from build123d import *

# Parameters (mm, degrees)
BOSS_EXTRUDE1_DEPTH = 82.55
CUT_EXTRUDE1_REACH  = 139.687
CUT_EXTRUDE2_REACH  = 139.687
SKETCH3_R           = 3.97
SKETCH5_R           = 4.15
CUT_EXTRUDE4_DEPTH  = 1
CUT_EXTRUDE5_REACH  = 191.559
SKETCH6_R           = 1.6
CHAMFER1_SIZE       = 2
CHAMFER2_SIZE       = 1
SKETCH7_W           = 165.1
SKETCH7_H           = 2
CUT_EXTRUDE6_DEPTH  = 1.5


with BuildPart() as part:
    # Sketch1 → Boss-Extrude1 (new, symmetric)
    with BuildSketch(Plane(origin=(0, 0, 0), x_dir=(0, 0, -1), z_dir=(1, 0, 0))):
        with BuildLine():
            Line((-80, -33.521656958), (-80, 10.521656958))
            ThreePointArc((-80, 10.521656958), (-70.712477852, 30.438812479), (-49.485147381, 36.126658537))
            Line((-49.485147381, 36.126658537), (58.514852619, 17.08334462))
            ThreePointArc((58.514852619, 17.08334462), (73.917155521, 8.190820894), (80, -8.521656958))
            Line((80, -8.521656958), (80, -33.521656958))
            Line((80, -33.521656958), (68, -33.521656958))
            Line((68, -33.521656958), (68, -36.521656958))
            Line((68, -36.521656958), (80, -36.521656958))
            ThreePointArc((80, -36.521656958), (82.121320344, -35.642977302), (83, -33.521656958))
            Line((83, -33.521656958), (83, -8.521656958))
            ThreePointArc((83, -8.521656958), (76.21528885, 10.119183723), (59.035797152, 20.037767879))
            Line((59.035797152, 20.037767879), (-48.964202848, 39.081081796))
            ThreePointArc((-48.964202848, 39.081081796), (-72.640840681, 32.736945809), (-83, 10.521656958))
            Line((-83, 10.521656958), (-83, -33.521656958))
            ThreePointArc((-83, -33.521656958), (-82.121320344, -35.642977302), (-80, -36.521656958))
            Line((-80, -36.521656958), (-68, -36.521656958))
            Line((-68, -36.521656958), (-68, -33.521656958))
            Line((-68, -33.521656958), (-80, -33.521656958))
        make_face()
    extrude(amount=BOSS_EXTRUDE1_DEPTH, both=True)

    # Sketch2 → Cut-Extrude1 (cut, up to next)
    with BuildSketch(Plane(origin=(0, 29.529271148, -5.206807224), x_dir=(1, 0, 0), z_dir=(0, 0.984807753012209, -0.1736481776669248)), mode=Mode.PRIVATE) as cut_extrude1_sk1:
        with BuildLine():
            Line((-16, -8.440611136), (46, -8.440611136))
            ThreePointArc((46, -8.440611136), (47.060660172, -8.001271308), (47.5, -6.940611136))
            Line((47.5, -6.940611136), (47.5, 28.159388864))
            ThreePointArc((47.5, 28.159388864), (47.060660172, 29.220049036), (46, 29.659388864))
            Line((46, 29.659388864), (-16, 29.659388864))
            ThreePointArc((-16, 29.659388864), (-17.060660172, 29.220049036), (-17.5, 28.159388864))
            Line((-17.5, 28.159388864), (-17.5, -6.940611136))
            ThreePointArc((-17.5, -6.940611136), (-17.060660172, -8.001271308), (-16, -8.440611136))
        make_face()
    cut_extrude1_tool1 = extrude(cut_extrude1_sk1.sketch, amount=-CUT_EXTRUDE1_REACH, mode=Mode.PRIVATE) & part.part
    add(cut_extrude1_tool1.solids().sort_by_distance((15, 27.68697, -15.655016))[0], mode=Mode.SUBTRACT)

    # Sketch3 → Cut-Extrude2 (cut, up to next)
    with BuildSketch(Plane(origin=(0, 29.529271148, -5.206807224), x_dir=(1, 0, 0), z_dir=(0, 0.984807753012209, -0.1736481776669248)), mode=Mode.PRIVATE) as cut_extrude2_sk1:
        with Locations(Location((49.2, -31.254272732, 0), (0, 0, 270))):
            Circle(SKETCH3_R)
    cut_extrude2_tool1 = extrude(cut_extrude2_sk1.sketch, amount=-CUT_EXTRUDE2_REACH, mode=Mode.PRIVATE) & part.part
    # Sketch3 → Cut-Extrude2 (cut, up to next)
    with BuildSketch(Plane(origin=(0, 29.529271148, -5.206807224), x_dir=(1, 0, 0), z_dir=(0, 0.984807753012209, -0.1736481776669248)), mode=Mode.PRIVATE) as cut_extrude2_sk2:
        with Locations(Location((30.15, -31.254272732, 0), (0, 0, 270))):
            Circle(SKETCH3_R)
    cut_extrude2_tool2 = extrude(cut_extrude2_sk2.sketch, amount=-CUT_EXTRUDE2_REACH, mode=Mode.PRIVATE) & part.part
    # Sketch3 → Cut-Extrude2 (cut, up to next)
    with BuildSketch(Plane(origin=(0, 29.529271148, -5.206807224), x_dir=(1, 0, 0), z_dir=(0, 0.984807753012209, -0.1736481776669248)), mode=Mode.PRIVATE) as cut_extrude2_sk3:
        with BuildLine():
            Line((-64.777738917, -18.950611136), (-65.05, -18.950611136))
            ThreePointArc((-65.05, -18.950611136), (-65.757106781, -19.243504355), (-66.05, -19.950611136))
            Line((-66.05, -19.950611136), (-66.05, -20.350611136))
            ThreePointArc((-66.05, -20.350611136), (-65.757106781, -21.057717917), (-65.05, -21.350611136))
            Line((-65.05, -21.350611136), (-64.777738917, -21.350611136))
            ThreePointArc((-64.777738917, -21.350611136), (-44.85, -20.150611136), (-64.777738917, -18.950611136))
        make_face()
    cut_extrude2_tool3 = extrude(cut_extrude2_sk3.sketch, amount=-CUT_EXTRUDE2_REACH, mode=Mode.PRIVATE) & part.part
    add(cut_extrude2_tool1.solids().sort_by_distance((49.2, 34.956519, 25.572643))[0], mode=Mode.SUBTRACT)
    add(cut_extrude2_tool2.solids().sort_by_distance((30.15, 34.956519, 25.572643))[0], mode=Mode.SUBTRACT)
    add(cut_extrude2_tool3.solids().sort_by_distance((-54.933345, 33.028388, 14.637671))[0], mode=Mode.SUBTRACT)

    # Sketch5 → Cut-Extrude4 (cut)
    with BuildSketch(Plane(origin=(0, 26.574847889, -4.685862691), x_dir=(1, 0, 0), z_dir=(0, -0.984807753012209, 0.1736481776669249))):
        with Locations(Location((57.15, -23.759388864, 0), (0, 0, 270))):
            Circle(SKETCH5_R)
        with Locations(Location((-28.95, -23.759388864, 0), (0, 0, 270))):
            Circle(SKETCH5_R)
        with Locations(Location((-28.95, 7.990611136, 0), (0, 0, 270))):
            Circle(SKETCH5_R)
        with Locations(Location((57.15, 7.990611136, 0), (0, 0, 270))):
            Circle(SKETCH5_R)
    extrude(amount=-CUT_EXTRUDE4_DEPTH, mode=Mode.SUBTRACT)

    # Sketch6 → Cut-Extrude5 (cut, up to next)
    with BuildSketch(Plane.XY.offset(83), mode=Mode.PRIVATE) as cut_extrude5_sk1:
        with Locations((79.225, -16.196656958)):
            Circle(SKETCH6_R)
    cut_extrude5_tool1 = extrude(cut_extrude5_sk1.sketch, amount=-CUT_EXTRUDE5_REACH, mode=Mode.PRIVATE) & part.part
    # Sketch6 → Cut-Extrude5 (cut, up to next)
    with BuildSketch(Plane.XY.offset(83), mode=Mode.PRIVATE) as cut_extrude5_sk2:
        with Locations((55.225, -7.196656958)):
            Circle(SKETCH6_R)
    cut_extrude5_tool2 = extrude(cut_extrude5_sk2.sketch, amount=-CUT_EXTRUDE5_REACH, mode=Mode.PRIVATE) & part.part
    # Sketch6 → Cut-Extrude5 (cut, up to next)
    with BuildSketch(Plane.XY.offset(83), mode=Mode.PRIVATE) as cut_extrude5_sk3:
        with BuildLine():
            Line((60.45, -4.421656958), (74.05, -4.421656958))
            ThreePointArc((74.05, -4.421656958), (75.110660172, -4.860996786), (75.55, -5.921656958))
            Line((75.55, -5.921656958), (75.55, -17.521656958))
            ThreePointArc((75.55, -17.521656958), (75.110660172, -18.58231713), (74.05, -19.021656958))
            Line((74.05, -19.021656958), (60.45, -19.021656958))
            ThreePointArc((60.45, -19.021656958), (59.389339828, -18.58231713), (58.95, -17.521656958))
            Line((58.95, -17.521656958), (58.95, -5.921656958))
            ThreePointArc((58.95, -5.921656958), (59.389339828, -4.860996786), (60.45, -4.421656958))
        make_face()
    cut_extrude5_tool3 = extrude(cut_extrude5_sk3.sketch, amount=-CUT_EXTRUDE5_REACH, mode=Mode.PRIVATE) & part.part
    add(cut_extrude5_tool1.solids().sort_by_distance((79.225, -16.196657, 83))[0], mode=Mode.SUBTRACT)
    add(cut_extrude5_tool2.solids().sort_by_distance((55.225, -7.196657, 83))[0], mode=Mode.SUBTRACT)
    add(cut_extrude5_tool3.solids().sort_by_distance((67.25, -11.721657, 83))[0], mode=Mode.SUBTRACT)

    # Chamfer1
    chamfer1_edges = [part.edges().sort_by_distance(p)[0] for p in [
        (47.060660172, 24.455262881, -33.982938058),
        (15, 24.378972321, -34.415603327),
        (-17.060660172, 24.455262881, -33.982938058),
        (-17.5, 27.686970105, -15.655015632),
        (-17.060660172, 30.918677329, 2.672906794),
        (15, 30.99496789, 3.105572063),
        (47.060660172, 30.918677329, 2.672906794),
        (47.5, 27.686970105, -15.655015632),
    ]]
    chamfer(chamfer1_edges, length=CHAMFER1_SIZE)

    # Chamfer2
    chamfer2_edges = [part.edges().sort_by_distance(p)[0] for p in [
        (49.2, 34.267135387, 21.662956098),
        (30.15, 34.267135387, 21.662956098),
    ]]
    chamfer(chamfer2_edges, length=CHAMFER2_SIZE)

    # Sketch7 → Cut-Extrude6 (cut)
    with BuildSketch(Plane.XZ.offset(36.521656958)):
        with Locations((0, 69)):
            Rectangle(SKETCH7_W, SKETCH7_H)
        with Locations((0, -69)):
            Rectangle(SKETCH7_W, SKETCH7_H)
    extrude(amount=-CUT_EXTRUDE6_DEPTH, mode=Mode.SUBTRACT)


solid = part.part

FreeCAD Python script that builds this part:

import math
import FreeCAD as App
import Part
import Sketcher
Q = App.Units.Quantity


def edges_at(feature, points):
    """Names of the edges that pass closest to the given points."""
    edges = feature.Shape.Edges
    near = lambda p: min(range(len(edges)), key=lambda i: edges[i].distToShape(Part.Vertex(*p))[0])
    return sorted({f"Edge{near(p) + 1}" for p in points})


def add_polygon(sketch, points):
    """Adds a closed chain of lines whose ends are joined by coincident constraints."""
    first, n = sketch.GeometryCount, len(points)
    for a, b in zip(points, points[1:] + points[:1]):
        sketch.addGeometry(Part.LineSegment(App.Vector(*a, 0), App.Vector(*b, 0)), False)
    for i in range(n):
        sketch.addConstraint(Sketcher.Constraint("Coincident", first + i, 2, first + (i + 1) % n, 1))

doc = App.newDocument("Part")
body = doc.addObject("PartDesign::Body", "Body")

# Sketch on YZ plane
sketch1 = doc.addObject("Sketcher::SketchObject", "Sketch")
body.addObject(sketch1)
sketch1.AttachmentSupport = (doc.YZ_Plane, [""])
sketch1.MapMode = "FlatFace"
sketch1.addGeometry([
    Part.LineSegment(App.Vector(-33.5, 80, 0), App.Vector(10.5, 80, 0)),  # 0
    Part.ArcOfCircle(Part.Circle(App.Vector(10.5, 54, 0), App.Vector(0, 0, 1), 26), math.radians(-10), math.radians(90)),  # 1
    Part.LineSegment(App.Vector(36.1, 49.5, 0), App.Vector(17.1, -58.5, 0)),  # 2
    Part.ArcOfCircle(Part.Circle(App.Vector(-8.5, -54, 0), App.Vector(0, 0, 1), 26), math.radians(-90), math.radians(-10)),  # 3
    Part.LineSegment(App.Vector(-8.5, -80, 0), App.Vector(-33.5, -80, 0)),  # 4
    Part.LineSegment(App.Vector(-33.5, -80, 0), App.Vector(-33.5, -68, 0)),  # 5
    Part.LineSegment(App.Vector(-33.5, -68, 0), App.Vector(-36.5, -68, 0)),  # 6
    Part.LineSegment(App.Vector(-36.5, -68, 0), App.Vector(-36.5, -80, 0)),  # 7
    Part.ArcOfCircle(Part.Circle(App.Vector(-33.5, -80, 0), App.Vector(0, 0, 1), 3), math.radians(180), math.radians(270)),  # 8
    Part.LineSegment(App.Vector(-33.5, -83, 0), App.Vector(-8.5, -83, 0)),  # 9
    Part.ArcOfCircle(Part.Circle(App.Vector(-8.5, -54, 0), App.Vector(0, 0, 1), 29), math.radians(-90), math.radians(-10)),  # 10
    Part.LineSegment(App.Vector(20, -59, 0), App.Vector(39.1, 49, 0)),  # 11
    Part.ArcOfCircle(Part.Circle(App.Vector(10.5, 54, 0), App.Vector(0, 0, 1), 29), math.radians(-10), math.radians(90)),  # 12
    Part.LineSegment(App.Vector(10.5, 83, 0), App.Vector(-33.5, 83, 0)),  # 13
    Part.ArcOfCircle(Part.Circle(App.Vector(-33.5, 80, 0), App.Vector(0, 0, 1), 3), math.radians(90), math.radians(180)),  # 14
    Part.LineSegment(App.Vector(-36.5, 80, 0), App.Vector(-36.5, 68, 0)),  # 15
    Part.LineSegment(App.Vector(-36.5, 68, 0), App.Vector(-33.5, 68, 0)),  # 16
    Part.LineSegment(App.Vector(-33.5, 68, 0), App.Vector(-33.5, 80, 0)),  # 17
], False)
sketch1.addConstraint([
    Sketcher.Constraint("Tangent", 0, 2, 1, 2),
    Sketcher.Constraint("Tangent", 1, 1, 2, 1),
    Sketcher.Constraint("Tangent", 2, 2, 3, 2),
    Sketcher.Constraint("Tangent", 3, 1, 4, 1),
    Sketcher.Constraint("Coincident", 4, 2, 5, 1),
    Sketcher.Constraint("Coincident", 5, 2, 6, 1),
    Sketcher.Constraint("Coincident", 6, 2, 7, 1),
    Sketcher.Constraint("Tangent", 7, 2, 8, 1),
    Sketcher.Constraint("Tangent", 8, 2, 9, 1),
    Sketcher.Constraint("Tangent", 9, 2, 10, 1),
    Sketcher.Constraint("Tangent", 10, 2, 11, 1),
    Sketcher.Constraint("Tangent", 11, 2, 12, 1),
    Sketcher.Constraint("Tangent", 12, 2, 13, 1),
    Sketcher.Constraint("Tangent", 13, 2, 14, 1),
    Sketcher.Constraint("Tangent", 14, 2, 15, 1),
    Sketcher.Constraint("Coincident", 15, 2, 16, 1),
    Sketcher.Constraint("Coincident", 16, 2, 17, 1),
    Sketcher.Constraint("Coincident", 17, 2, 0, 1),
    Sketcher.Constraint("Horizontal", 0),
    Sketcher.Constraint("Horizontal", 4),
    Sketcher.Constraint("Vertical", 5),
    Sketcher.Constraint("Horizontal", 6),
    Sketcher.Constraint("Vertical", 7),
    Sketcher.Constraint("Horizontal", 9),
    Sketcher.Constraint("Horizontal", 13),
    Sketcher.Constraint("Vertical", 15),
    Sketcher.Constraint("Horizontal", 16),
    Sketcher.Constraint("Vertical", 17),
    Sketcher.Constraint("Coincident", 10, 3, 3, 3),
    Sketcher.Constraint("Coincident", 12, 3, 1, 3),
    Sketcher.Constraint("Coincident", 4, 2, 8, 3),
    Sketcher.Constraint("Coincident", 17, 2, 14, 3),
    Sketcher.Constraint("Equal", 1, 3),
    Sketcher.Constraint("Equal", 10, 12),
    Sketcher.Constraint("Symmetric", 8, 3, 14, 3, -1),
    Sketcher.Constraint("Equal", 7, 15),
    Sketcher.Constraint("Radius", 1, Q("26 mm")),
    Sketcher.Constraint("Radius", 8, Q("3 mm")),
    Sketcher.Constraint("DistanceX", 4, 2, 4, 1, Q("25 mm")),
    Sketcher.Constraint("DistanceY", 5, 1, 5, 2, Q("12 mm")),
    Sketcher.Constraint("Angle", 2, Q("-100 deg")),
    Sketcher.Constraint("DistanceY", -1, 1, 1, 3, Q("54 mm")),
    Sketcher.Constraint("DistanceX", -1, 1, 1, 1, Q("36.126659 mm")),
])
pad1 = doc.addObject("PartDesign::Pad", "Pad")
body.addObject(pad1)
pad1.Profile = sketch1
pad1.Length = 165.1
pad1.Midplane = True

# Sketch on an angled plane
sketch2 = doc.addObject("Sketcher::SketchObject", "Sketch001")
body.addObject(sketch2)
sketch2.Placement = App.Placement(App.Vector(0, 29.529271, -5.206807), App.Rotation(App.Vector(1, 0, 0), App.Vector(0, -0.173648178, -0.984807753), App.Vector(0, 0.984807753, -0.173648178), "ZXY"))
sketch2.addGeometry([
    Part.LineSegment(App.Vector(-16, -8.4, 0), App.Vector(46, -8.4, 0)),  # 0
    Part.ArcOfCircle(Part.Circle(App.Vector(46, -6.9, 0), App.Vector(0, 0, 1), 1.5), math.radians(-90), math.radians(0)),  # 1
    Part.LineSegment(App.Vector(47.5, -6.9, 0), App.Vector(47.5, 28.2, 0)),  # 2
    Part.ArcOfCircle(Part.Circle(App.Vector(46, 28.2, 0), App.Vector(0, 0, 1), 1.5), math.radians(0), math.radians(90)),  # 3
    Part.LineSegment(App.Vector(46, 29.7, 0), App.Vector(-16, 29.7, 0)),  # 4
    Part.ArcOfCircle(Part.Circle(App.Vector(-16, 28.2, 0), App.Vector(0, 0, 1), 1.5), math.radians(90), math.radians(180)),  # 5
    Part.LineSegment(App.Vector(-17.5, 28.2, 0), App.Vector(-17.5, -6.9, 0)),  # 6
    Part.ArcOfCircle(Part.Circle(App.Vector(-16, -6.9, 0), App.Vector(0, 0, 1), 1.5), math.radians(180), math.radians(270)),  # 7
], False)
sketch2.addConstraint([
    Sketcher.Constraint("Tangent", 0, 2, 1, 1),
    Sketcher.Constraint("Tangent", 1, 2, 2, 1),
    Sketcher.Constraint("Tangent", 2, 2, 3, 1),
    Sketcher.Constraint("Tangent", 3, 2, 4, 1),
    Sketcher.Constraint("Tangent", 4, 2, 5, 1),
    Sketcher.Constraint("Tangent", 5, 2, 6, 1),
    Sketcher.Constraint("Tangent", 6, 2, 7, 1),
    Sketcher.Constraint("Tangent", 7, 2, 0, 1),
    Sketcher.Constraint("Horizontal", 0),
    Sketcher.Constraint("Vertical", 2),
    Sketcher.Constraint("Horizontal", 4),
    Sketcher.Constraint("Vertical", 6),
    Sketcher.Constraint("Equal", 1, 3),
    Sketcher.Constraint("Equal", 3, 5),
    Sketcher.Constraint("Equal", 5, 7),
    Sketcher.Constraint("Radius", 1, Q("1.5 mm")),
    Sketcher.Constraint("DistanceX", 0, 1, 0, 2, Q("62 mm")),
    Sketcher.Constraint("DistanceY", 2, 1, 2, 2, Q("35.1 mm")),
    Sketcher.Constraint("DistanceX", -1, 1, 1, 3, Q("46 mm")),
    Sketcher.Constraint("DistanceY", 1, 3, -1, 1, Q("6.940611 mm")),
])
pocket1 = doc.addObject("PartDesign::Pocket", "Pocket")
body.addObject(pocket1)
pocket1.Profile = sketch2
pocket1.Type = "UpToFirst"

# Sketch on an angled plane
sketch3 = doc.addObject("Sketcher::SketchObject", "Sketch002")
body.addObject(sketch3)
sketch3.Placement = App.Placement(App.Vector(0, 29.529271, -5.206807), App.Rotation(App.Vector(1, 0, 0), App.Vector(0, -0.173648178, -0.984807753), App.Vector(0, 0.984807753, -0.173648178), "ZXY"))
sketch3.addGeometry(Part.Circle(App.Vector(49.2, -31.3, 0), App.Vector(0, 0, 1), 4), False)
sketch3.addConstraint([
    Sketcher.Constraint("Diameter", 0, Q("7.94 mm")),
    Sketcher.Constraint("DistanceX", -1, 1, 0, 3, Q("49.2 mm")),
    Sketcher.Constraint("DistanceY", 0, 3, -1, 1, Q("31.254273 mm")),
])
pocket2 = doc.addObject("PartDesign::Pocket", "Pocket001")
body.addObject(pocket2)
pocket2.Profile = sketch3
pocket2.Type = "UpToFirst"

# Sketch on an angled plane
sketch4 = doc.addObject("Sketcher::SketchObject", "Sketch003")
body.addObject(sketch4)
sketch4.Placement = App.Placement(App.Vector(0, 29.529271, -5.206807), App.Rotation(App.Vector(1, 0, 0), App.Vector(0, -0.173648178, -0.984807753), App.Vector(0, 0.984807753, -0.173648178), "ZXY"))
sketch4.addGeometry(Part.Circle(App.Vector(30.1, -31.3, 0), App.Vector(0, 0, 1), 4), False)
sketch4.addConstraint([
    Sketcher.Constraint("Diameter", 0, Q("7.94 mm")),
    Sketcher.Constraint("DistanceX", -1, 1, 0, 3, Q("30.15 mm")),
    Sketcher.Constraint("DistanceY", 0, 3, -1, 1, Q("31.254273 mm")),
])
pocket3 = doc.addObject("PartDesign::Pocket", "Pocket002")
body.addObject(pocket3)
pocket3.Profile = sketch4
pocket3.Type = "UpToFirst"

# Sketch on an angled plane
sketch5 = doc.addObject("Sketcher::SketchObject", "Sketch004")
body.addObject(sketch5)
sketch5.Placement = App.Placement(App.Vector(0, 29.529271, -5.206807), App.Rotation(App.Vector(1, 0, 0), App.Vector(0, -0.173648178, -0.984807753), App.Vector(0, 0.984807753, -0.173648178), "ZXY"))
sketch5.addGeometry([
    Part.LineSegment(App.Vector(-64.78, -18.95, 0), App.Vector(-65.05, -18.95, 0)),  # 0
    Part.ArcOfCircle(Part.Circle(App.Vector(-65.05, -19.95, 0), App.Vector(0, 0, 1), 1), math.radians(90), math.radians(180)),  # 1
    Part.LineSegment(App.Vector(-66.05, -19.95, 0), App.Vector(-66.05, -20.35, 0)),  # 2
    Part.ArcOfCircle(Part.Circle(App.Vector(-65.05, -20.35, 0), App.Vector(0, 0, 1), 1), math.radians(-180), math.radians(-90)),  # 3
    Part.LineSegment(App.Vector(-65.05, -21.35, 0), App.Vector(-64.78, -21.35, 0)),  # 4
    Part.ArcOfCircle(Part.Circle(App.Vector(-54.85, -20.15, 0), App.Vector(0, 0, 1), 10), math.radians(-173), math.radians(173)),  # 5
], False)
sketch5.addConstraint([
    Sketcher.Constraint("Tangent", 0, 2, 1, 1),
    Sketcher.Constraint("Tangent", 1, 2, 2, 1),
    Sketcher.Constraint("Tangent", 2, 2, 3, 1),
    Sketcher.Constraint("Tangent", 3, 2, 4, 1),
    Sketcher.Constraint("Coincident", 4, 2, 5, 1),
    Sketcher.Constraint("Coincident", 5, 2, 0, 1),
    Sketcher.Constraint("Horizontal", 0),
    Sketcher.Constraint("Vertical", 2),
    Sketcher.Constraint("Horizontal", 4),
    Sketcher.Constraint("Equal", 1, 3),
    Sketcher.Constraint("Vertical", 4, 2, 5, 2),
    Sketcher.Constraint("Radius", 1, Q("1 mm")),
    Sketcher.Constraint("Radius", 5, Q("10 mm")),
    Sketcher.Constraint("DistanceY", 2, 2, 2, 1, Q("0.4 mm")),
    Sketcher.Constraint("DistanceX", 1, 3, 5, 3, Q("10.2 mm")),
    Sketcher.Constraint("DistanceX", 1, 3, -1, 1, Q("65.05 mm")),
    Sketcher.Constraint("DistanceY", 1, 3, -1, 1, Q("19.950611 mm")),
])
pocket4 = doc.addObject("PartDesign::Pocket", "Pocket003")
body.addObject(pocket4)
pocket4.Profile = sketch5
pocket4.Type = "UpToFirst"

# Sketch on an angled plane
sketch6 = doc.addObject("Sketcher::SketchObject", "Sketch005")
body.addObject(sketch6)
sketch6.Placement = App.Placement(App.Vector(0, 26.574848, -4.685863), App.Rotation(App.Vector(1, 0, 0), App.Vector(0, 0.173648178, 0.984807753), App.Vector(0, -0.984807753, 0.173648178), "ZXY"))
sketch6.addGeometry([
    Part.Circle(App.Vector(57.1, -23.8, 0), App.Vector(0, 0, 1), 4.2),
    Part.Circle(App.Vector(-28.9, -23.8, 0), App.Vector(0, 0, 1), 4.2),
    Part.Circle(App.Vector(-28.9, 8, 0), App.Vector(0, 0, 1), 4.2),
    Part.Circle(App.Vector(57.1, 8, 0), App.Vector(0, 0, 1), 4.2),
], False)
sketch6.addConstraint([
    Sketcher.Constraint("Equal", 0, 1),
    Sketcher.Constraint("Equal", 1, 2),
    Sketcher.Constraint("Equal", 2, 3),
    Sketcher.Constraint("Horizontal", 0, 3, 1, 3),
    Sketcher.Constraint("Horizontal", 2, 3, 3, 3),
    Sketcher.Constraint("Vertical", 1, 3, 2, 3),
    Sketcher.Constraint("Vertical", 0, 3, 3, 3),
    Sketcher.Constraint("Diameter", 0, Q("8.3 mm")),
    Sketcher.Constraint("DistanceX", 1, 3, 0, 3, Q("86.1 mm")),
    Sketcher.Constraint("DistanceX", -1, 1, 0, 3, Q("57.15 mm")),
    Sketcher.Constraint("DistanceY", 1, 3, 2, 3, Q("31.75 mm")),
    Sketcher.Constraint("DistanceY", 0, 3, -1, 1, Q("23.759389 mm")),
])
pocket5 = doc.addObject("PartDesign::Pocket", "Pocket004")
body.addObject(pocket5)
pocket5.Profile = sketch6
pocket5.Length = 1

# Sketch on XY plane
sketch7 = doc.addObject("Sketcher::SketchObject", "Sketch006")
body.addObject(sketch7)
sketch7.AttachmentSupport = (doc.XY_Plane, [""])
sketch7.MapMode = "FlatFace"
sketch7.AttachmentOffset = App.Placement(App.Vector(0, 0, 83), App.Rotation())
sketch7.addGeometry(Part.Circle(App.Vector(79.2, -16.2, 0), App.Vector(0, 0, 1), 1.6), False)
sketch7.addConstraint([
    Sketcher.Constraint("Diameter", 0, Q("3.2 mm")),
    Sketcher.Constraint("DistanceX", -1, 1, 0, 3, Q("79.225 mm")),
    Sketcher.Constraint("DistanceY", 0, 3, -1, 1, Q("16.196657 mm")),
])
pocket6 = doc.addObject("PartDesign::Pocket", "Pocket005")
body.addObject(pocket6)
pocket6.Profile = sketch7
pocket6.Type = "UpToFirst"

# Sketch on XY plane
sketch8 = doc.addObject("Sketcher::SketchObject", "Sketch007")
body.addObject(sketch8)
sketch8.AttachmentSupport = (doc.XY_Plane, [""])
sketch8.MapMode = "FlatFace"
sketch8.AttachmentOffset = App.Placement(App.Vector(0, 0, 83), App.Rotation())
sketch8.addGeometry(Part.Circle(App.Vector(55.2, -7.2, 0), App.Vector(0, 0, 1), 1.6), False)
sketch8.addConstraint([
    Sketcher.Constraint("Diameter", 0, Q("3.2 mm")),
    Sketcher.Constraint("DistanceX", -1, 1, 0, 3, Q("55.225 mm")),
    Sketcher.Constraint("DistanceY", 0, 3, -1, 1, Q("7.196657 mm")),
])
pocket7 = doc.addObject("PartDesign::Pocket", "Pocket006")
body.addObject(pocket7)
pocket7.Profile = sketch8
pocket7.Type = "UpToFirst"

# Sketch on XY plane
sketch9 = doc.addObject("Sketcher::SketchObject", "Sketch008")
body.addObject(sketch9)
sketch9.AttachmentSupport = (doc.XY_Plane, [""])
sketch9.MapMode = "FlatFace"
sketch9.AttachmentOffset = App.Placement(App.Vector(0, 0, 83), App.Rotation())
sketch9.addGeometry([
    Part.LineSegment(App.Vector(74, -4.4, 0), App.Vector(60.5, -4.4, 0)),  # 0
    Part.ArcOfCircle(Part.Circle(App.Vector(60.4, -5.9, 0), App.Vector(0, 0, 1), 1.5), math.radians(90), math.radians(180)),  # 1
    Part.LineSegment(App.Vector(59, -5.9, 0), App.Vector(59, -17.5, 0)),  # 2
    Part.ArcOfCircle(Part.Circle(App.Vector(60.4, -17.5, 0), App.Vector(0, 0, 1), 1.5), math.radians(180), math.radians(270)),  # 3
    Part.LineSegment(App.Vector(60.5, -19, 0), App.Vector(74, -19, 0)),  # 4
    Part.ArcOfCircle(Part.Circle(App.Vector(74.1, -17.5, 0), App.Vector(0, 0, 1), 1.5), math.radians(-90), math.radians(0)),  # 5
    Part.LineSegment(App.Vector(75.5, -17.5, 0), App.Vector(75.5, -5.9, 0)),  # 6
    Part.ArcOfCircle(Part.Circle(App.Vector(74.1, -5.9, 0), App.Vector(0, 0, 1), 1.5), math.radians(0), math.radians(90)),  # 7
], False)
sketch9.addConstraint([
    Sketcher.Constraint("Tangent", 0, 2, 1, 1),
    Sketcher.Constraint("Tangent", 1, 2, 2, 1),
    Sketcher.Constraint("Tangent", 2, 2, 3, 1),
    Sketcher.Constraint("Tangent", 3, 2, 4, 1),
    Sketcher.Constraint("Tangent", 4, 2, 5, 1),
    Sketcher.Constraint("Tangent", 5, 2, 6, 1),
    Sketcher.Constraint("Tangent", 6, 2, 7, 1),
    Sketcher.Constraint("Tangent", 7, 2, 0, 1),
    Sketcher.Constraint("Horizontal", 0),
    Sketcher.Constraint("Vertical", 2),
    Sketcher.Constraint("Horizontal", 4),
    Sketcher.Constraint("Vertical", 6),
    Sketcher.Constraint("Equal", 1, 3),
    Sketcher.Constraint("Equal", 3, 5),
    Sketcher.Constraint("Equal", 5, 7),
    Sketcher.Constraint("Radius", 1, Q("1.5 mm")),
    Sketcher.Constraint("DistanceX", 0, 2, 0, 1, Q("13.6 mm")),
    Sketcher.Constraint("DistanceY", 2, 2, 2, 1, Q("11.6 mm")),
    Sketcher.Constraint("DistanceX", -1, 1, 1, 3, Q("60.45 mm")),
    Sketcher.Constraint("DistanceY", 1, 3, -1, 1, Q("5.921657 mm")),
])
pocket8 = doc.addObject("PartDesign::Pocket", "Pocket007")
body.addObject(pocket8)
pocket8.Profile = sketch9
pocket8.Type = "UpToFirst"
doc.recompute()

chamfer = doc.addObject("PartDesign::Chamfer", "Chamfer")
body.addObject(chamfer)
chamfer.Base = (pocket8, edges_at(pocket8, [
    (47.061, 24.455, -33.983),
    (15, 24.379, -34.416),
    (-17.061, 24.455, -33.983),
    (-17.5, 27.687, -15.655),
    (-17.061, 30.919, 2.673),
    (15, 30.995, 3.106),
    (47.061, 30.919, 2.673),
    (47.5, 27.687, -15.655),
]))
chamfer.Size = 2
doc.recompute()

chamfer2 = doc.addObject("PartDesign::Chamfer", "Chamfer001")
body.addObject(chamfer2)
chamfer2.Base = (chamfer, edges_at(chamfer, [(49.2, 34.267, 21.663), (30.15, 34.267, 21.663)]))
chamfer2.Size = 1

# Sketch on XZ plane
sketch10 = doc.addObject("Sketcher::SketchObject", "Sketch009")
body.addObject(sketch10)
sketch10.AttachmentSupport = (doc.XZ_Plane, [""])
sketch10.MapMode = "FlatFace"
sketch10.AttachmentOffset = App.Placement(App.Vector(0, 0, 36.521657), App.Rotation())
add_polygon(sketch10, [(-82.5, 70), (-82.5, 68), (82.5, 68), (82.5, 70)])  # lines 0-3
add_polygon(sketch10, [(-82.5, -68), (-82.5, -70), (82.5, -70), (82.5, -68)])  # lines 4-7
sketch10.addConstraint([
    Sketcher.Constraint("Vertical", 0),
    Sketcher.Constraint("Horizontal", 1),
    Sketcher.Constraint("Vertical", 2),
    Sketcher.Constraint("Horizontal", 3),
    Sketcher.Constraint("Vertical", 4),
    Sketcher.Constraint("Horizontal", 5),
    Sketcher.Constraint("Vertical", 6),
    Sketcher.Constraint("Horizontal", 7),
    Sketcher.Constraint("Symmetric", 2, 2, 4, 2, -1, 1),
    Sketcher.Constraint("Symmetric", 0, 2, 6, 2, -1, 1),
    Sketcher.Constraint("Vertical", 3, 2, 4, 2),
    Sketcher.Constraint("DistanceY", 0, 2, 0, 1, Q("2 mm")),
    Sketcher.Constraint("DistanceX", 1, 1, 1, 2, Q("165.1 mm")),
    Sketcher.Constraint("DistanceY", -1, 1, 0, 2, Q("68 mm")),
])
pocket9 = doc.addObject("PartDesign::Pocket", "Pocket008")
body.addObject(pocket9)
pocket9.Profile = sketch10
pocket9.Length = 1.5

doc.recompute()
